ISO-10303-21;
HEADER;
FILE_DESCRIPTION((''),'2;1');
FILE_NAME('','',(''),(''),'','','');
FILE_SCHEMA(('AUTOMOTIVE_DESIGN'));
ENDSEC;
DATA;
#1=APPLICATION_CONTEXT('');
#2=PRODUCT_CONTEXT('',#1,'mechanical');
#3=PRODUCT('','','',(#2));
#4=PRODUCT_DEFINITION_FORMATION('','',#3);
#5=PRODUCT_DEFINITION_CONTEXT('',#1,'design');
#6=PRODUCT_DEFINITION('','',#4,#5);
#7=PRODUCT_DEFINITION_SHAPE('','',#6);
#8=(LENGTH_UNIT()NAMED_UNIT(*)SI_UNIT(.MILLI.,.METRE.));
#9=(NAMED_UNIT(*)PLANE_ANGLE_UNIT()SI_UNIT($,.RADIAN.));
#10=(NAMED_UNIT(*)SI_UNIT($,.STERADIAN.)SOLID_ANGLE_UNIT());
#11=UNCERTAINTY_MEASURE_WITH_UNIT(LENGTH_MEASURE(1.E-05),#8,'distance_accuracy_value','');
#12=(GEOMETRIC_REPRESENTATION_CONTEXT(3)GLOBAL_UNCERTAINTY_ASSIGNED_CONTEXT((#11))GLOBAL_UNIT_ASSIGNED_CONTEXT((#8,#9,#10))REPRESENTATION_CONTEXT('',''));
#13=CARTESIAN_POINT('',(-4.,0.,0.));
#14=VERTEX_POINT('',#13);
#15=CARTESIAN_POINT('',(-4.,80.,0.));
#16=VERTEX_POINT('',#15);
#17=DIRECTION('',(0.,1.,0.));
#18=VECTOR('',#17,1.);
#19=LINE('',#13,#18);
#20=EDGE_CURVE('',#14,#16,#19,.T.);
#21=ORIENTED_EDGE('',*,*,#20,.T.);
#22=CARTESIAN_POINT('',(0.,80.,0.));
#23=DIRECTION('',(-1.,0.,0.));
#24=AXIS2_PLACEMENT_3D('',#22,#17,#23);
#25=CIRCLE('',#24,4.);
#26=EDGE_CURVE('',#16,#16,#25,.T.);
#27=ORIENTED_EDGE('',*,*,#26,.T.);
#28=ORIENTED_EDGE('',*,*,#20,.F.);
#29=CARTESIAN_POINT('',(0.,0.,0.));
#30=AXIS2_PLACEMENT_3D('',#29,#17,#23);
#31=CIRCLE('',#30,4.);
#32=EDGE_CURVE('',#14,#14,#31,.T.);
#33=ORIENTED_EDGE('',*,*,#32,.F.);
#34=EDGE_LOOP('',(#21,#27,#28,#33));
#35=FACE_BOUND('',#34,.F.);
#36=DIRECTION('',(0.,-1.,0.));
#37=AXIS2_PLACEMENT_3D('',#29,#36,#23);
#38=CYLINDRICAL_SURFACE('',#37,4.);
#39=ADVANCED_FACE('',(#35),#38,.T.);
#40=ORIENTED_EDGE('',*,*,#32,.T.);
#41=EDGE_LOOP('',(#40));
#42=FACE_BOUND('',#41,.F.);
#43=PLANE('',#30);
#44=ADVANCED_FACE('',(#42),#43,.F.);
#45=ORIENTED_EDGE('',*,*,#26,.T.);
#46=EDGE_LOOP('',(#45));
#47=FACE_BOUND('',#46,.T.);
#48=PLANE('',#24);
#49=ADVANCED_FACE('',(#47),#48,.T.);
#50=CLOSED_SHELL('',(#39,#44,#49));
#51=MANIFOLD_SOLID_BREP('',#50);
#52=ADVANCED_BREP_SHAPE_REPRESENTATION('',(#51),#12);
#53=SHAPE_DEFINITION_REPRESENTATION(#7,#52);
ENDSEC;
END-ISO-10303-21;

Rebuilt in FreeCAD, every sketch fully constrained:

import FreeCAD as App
import Part
import Sketcher
from FreeCAD import Vector
Q = App.Units.Quantity

doc = App.newDocument("Part")
body = doc.addObject("PartDesign::Body", "Body")

# Sketch on XZ plane
sketch1 = body.newObject("Sketcher::SketchObject", "Sketch")
sketch1.AttachmentSupport = (doc.getObject("XZ_Plane"), [""])
sketch1.MapMode = "FlatFace"
sketch1.addGeometry(Part.Circle(Vector(0, 0, 0), Vector(0, 0, 1), 4), False)
sketch1.addConstraint([
    Sketcher.Constraint("Coincident", 0, 3, -1, 1),
    Sketcher.Constraint("Diameter", 0, Q("8 mm")),
])
pad1 = body.newObject("PartDesign::Pad", "Pad")
pad1.Profile = sketch1
pad1.Length = 80
pad1.Reversed = True

doc.recompute()
